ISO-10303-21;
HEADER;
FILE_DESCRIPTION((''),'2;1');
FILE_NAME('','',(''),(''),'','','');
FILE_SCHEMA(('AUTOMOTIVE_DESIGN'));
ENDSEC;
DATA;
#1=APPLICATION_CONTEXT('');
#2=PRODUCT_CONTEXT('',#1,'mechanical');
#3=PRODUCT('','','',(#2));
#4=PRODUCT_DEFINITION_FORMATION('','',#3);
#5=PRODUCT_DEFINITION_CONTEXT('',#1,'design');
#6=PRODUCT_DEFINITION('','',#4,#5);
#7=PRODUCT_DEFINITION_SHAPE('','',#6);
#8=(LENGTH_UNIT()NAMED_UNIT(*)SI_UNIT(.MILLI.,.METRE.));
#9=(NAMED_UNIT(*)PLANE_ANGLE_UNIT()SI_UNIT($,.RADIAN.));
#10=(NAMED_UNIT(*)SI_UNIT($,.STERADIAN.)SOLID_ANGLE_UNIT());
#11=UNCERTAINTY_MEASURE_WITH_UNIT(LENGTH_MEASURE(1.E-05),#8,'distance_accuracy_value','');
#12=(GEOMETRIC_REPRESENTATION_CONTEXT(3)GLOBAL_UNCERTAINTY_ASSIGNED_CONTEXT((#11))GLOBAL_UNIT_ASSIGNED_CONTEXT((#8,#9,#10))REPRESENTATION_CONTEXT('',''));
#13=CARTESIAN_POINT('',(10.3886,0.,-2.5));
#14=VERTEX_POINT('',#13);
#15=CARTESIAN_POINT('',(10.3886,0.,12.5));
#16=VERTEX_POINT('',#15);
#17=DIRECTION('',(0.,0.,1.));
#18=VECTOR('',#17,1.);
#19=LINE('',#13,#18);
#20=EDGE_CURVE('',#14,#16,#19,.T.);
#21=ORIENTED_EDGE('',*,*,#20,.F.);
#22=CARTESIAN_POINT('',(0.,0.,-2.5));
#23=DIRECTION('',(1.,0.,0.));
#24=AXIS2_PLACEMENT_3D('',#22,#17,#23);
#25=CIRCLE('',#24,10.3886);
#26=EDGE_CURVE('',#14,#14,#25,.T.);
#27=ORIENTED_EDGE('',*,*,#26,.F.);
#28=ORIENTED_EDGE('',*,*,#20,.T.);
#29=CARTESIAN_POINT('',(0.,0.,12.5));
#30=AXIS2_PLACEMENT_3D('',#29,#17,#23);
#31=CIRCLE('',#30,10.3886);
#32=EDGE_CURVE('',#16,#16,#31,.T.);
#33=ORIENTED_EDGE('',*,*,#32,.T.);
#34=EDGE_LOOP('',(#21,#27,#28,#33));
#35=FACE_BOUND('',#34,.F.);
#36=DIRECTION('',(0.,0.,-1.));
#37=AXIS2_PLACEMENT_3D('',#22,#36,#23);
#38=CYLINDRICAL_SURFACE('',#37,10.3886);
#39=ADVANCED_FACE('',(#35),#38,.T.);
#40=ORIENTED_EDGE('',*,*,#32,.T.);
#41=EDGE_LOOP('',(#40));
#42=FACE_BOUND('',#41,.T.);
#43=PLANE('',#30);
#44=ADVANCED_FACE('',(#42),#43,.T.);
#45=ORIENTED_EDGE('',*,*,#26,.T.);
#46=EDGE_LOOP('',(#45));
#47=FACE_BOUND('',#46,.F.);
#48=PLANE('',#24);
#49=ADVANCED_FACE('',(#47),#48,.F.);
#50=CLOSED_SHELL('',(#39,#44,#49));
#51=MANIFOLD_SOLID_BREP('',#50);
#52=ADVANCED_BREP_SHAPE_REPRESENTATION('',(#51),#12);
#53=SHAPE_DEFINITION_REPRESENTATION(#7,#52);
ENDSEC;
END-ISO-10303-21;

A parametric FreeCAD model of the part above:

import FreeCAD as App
import Part
import Sketcher

V = App.Vector
Q = App.Units.Quantity

doc = App.newDocument("Part")
params = doc.addObject("Spreadsheet::Sheet", "Params")
for row, (alias, value) in enumerate([
    ("pad1_length", "15 mm"),
], start=1):
    params.set(f"A{row}", alias)
    params.set(f"B{row}", "=" + value)
    params.setAlias(f"B{row}", alias)

body = doc.addObject("PartDesign::Body", "Body")

# Sketch on XY plane
sketch1 = doc.addObject("Sketcher::SketchObject", "Sketch")
body.addObject(sketch1)
sketch1.AttachmentSupport = (doc.XY_Plane, [""])
sketch1.MapMode = "FlatFace"
sketch1.AttachmentOffset = App.Placement(V(0, 0, -2.5), App.Rotation())
sketch1.addGeometry(Part.Circle(V(0, 0, 0), V(0, 0, 1), 10.3886), False)
sketch1.addConstraint([
    Sketcher.Constraint("Coincident", 0, 3, -1, 1),
    Sketcher.Constraint("Diameter", 0, Q("20.7772 mm")),
])
pad1 = doc.addObject("PartDesign::Pad", "Pad")
body.addObject(pad1)
pad1.Profile = sketch1
pad1.setExpression("Length", "Params.pad1_length")

doc.recompute()
